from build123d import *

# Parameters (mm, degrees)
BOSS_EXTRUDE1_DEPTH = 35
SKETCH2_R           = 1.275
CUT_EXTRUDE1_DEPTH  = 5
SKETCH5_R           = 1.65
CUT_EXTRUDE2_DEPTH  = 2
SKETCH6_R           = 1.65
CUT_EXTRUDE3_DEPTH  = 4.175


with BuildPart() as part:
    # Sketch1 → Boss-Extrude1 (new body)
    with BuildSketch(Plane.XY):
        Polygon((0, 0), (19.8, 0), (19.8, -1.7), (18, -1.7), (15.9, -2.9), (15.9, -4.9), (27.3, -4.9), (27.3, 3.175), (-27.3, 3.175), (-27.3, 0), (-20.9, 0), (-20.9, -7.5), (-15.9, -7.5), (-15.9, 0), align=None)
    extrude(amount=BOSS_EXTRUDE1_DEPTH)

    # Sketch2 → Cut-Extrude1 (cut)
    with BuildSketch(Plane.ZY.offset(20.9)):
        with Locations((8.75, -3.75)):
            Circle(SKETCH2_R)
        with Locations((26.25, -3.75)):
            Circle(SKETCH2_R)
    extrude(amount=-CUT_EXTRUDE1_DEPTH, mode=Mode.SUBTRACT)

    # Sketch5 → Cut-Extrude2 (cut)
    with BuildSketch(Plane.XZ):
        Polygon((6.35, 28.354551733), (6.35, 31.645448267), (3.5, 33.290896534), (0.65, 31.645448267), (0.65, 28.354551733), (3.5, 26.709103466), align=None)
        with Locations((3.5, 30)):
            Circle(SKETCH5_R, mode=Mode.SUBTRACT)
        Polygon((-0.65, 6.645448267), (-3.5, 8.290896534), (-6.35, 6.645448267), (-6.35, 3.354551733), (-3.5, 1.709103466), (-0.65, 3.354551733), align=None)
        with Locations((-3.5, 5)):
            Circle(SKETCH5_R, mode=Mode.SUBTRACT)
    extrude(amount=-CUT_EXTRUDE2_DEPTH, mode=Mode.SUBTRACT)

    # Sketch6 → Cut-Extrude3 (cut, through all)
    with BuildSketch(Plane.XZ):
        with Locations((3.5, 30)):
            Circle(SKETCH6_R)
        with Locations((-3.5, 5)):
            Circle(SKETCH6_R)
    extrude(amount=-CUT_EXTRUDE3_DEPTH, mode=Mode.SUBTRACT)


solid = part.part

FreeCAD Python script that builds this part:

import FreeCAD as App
import Part
import Sketcher
Q = App.Units.Quantity


def add_polygon(sketch, points):
    """Adds a closed chain of lines whose ends are joined by coincident constraints."""
    first, n = sketch.GeometryCount, len(points)
    for a, b in zip(points, points[1:] + points[:1]):
        sketch.addGeometry(Part.LineSegment(App.Vector(*a, 0), App.Vector(*b, 0)), False)
    for i in range(n):
        sketch.addConstraint(Sketcher.Constraint("Coincident", first + i, 2, first + (i + 1) % n, 1))

doc = App.newDocument("Part")
params = doc.addObject("Spreadsheet::Sheet", "Params")
for row, (alias, value) in enumerate([
    ("sketch1_width", "5 mm"),
    ("sketch1_height", "2 mm"),
    ("sketch1_width2", "1.8 mm"),
    ("sketch1_width3", "11.4 mm"),
    ("sketch1_width4", "54.6 mm"),
    ("pad1_length", "35 mm"),
    ("sketch2_diameter", "2.55 mm"),
    ("pocket1_length", "5 mm"),
    ("sketch3_diameter", "3.3 mm"),
    ("pocket2_length", "2 mm"),
    ("sketch4_diameter", "3.3 mm"),
], start=1):
    params.set(f"A{row}", alias)
    params.set(f"B{row}", "=" + value)
    params.setAlias(f"B{row}", alias)

body = doc.addObject("PartDesign::Body", "Body")

# Sketch on XY plane
sketch1 = body.newObject("Sketcher::SketchObject", "Sketch")
sketch1.AttachmentSupport = (doc.getObject("XY_Plane"), [""])
sketch1.MapMode = "FlatFace"
add_polygon(sketch1, [(19.8, 0), (19.8, -1.7), (18, -1.7), (15.9, -2.9), (15.9, -4.9), (27.3, -4.9), (27.3, 3.175), (-27.3, 3.175), (-27.3, 0), (-20.9, 0), (-20.9, -7.5), (-15.9, -7.5), (-15.9, 0)])  # lines 0-12
sketch1.addConstraint([
    Sketcher.Constraint("Vertical", 0),
    Sketcher.Constraint("Horizontal", 1),
    Sketcher.Constraint("Vertical", 3),
    Sketcher.Constraint("Horizontal", 4),
    Sketcher.Constraint("Vertical", 5),
    Sketcher.Constraint("Horizontal", 6),
    Sketcher.Constraint("Vertical", 7),
    Sketcher.Constraint("Horizontal", 8),
    Sketcher.Constraint("Vertical", 9),
    Sketcher.Constraint("Horizontal", 10),
    Sketcher.Constraint("Vertical", 11),
    Sketcher.Constraint("Horizontal", 12),
    Sketcher.Constraint("PointOnObject", 7, 2, -1),
    Sketcher.Constraint("PointOnObject", 11, 2, -1),
    Sketcher.Constraint("DistanceX", 10, 1, 10, 2, 5.0),
    Sketcher.Constraint("DistanceY", 3, 2, 3, 1, 2.0),
    Sketcher.Constraint("DistanceX", 1, 2, 1, 1, 1.8),
    Sketcher.Constraint("DistanceX", 4, 1, 4, 2, 11.4),
    Sketcher.Constraint("DistanceX", 6, 2, 6, 1, 54.6),
    Sketcher.Constraint("DistanceX", 8, 1, 8, 2, 6.4),
    Sketcher.Constraint("DistanceX", 12, 1, 12, 2, 35.7),
    Sketcher.Constraint("DistanceY", 0, 2, 0, 1, 1.7),
    Sketcher.Constraint("DistanceY", 9, 2, 9, 1, 7.5),
    Sketcher.Constraint("DistanceX", -1, 1, 1, 2, 18.0),
    Sketcher.Constraint("DistanceY", 2, 2, -1, 1, 2.9),
    Sketcher.Constraint("DistanceY", 5, 1, 5, 2, 8.075),
])
sketch1.setExpression("Constraints[27]", "Params.sketch1_width")
sketch1.setExpression("Constraints[28]", "Params.sketch1_height")
sketch1.setExpression("Constraints[29]", "Params.sketch1_width2")
sketch1.setExpression("Constraints[30]", "Params.sketch1_width3")
sketch1.setExpression("Constraints[31]", "Params.sketch1_width4")
pad1 = body.newObject("PartDesign::Pad", "Pad")
pad1.Profile = sketch1
pad1.setExpression("Length", "Params.pad1_length")

# Sketch on YZ plane
sketch2 = body.newObject("Sketcher::SketchObject", "Sketch001")
sketch2.AttachmentSupport = (doc.getObject("YZ_Plane"), [""])
sketch2.MapMode = "FlatFace"
sketch2.AttachmentOffset = App.Placement(App.Vector(0, 0, -20.9), App.Rotation())
sketch2.addGeometry([
    Part.Circle(App.Vector(-3.75, 8.75, 0), App.Vector(0, 0, 1), 1.275),
    Part.Circle(App.Vector(-3.75, 26.25, 0), App.Vector(0, 0, 1), 1.275),
], False)
sketch2.addConstraint([
    Sketcher.Constraint("Equal", 0, 1),
    Sketcher.Constraint("Vertical", 0, 3, 1, 3),
    Sketcher.Constraint("Diameter", 0, 2.55),
    Sketcher.Constraint("DistanceY", 0, 3, 1, 3, 17.5),
    Sketcher.Constraint("DistanceX", 0, 3, -1, 1, 3.75),
    Sketcher.Constraint("DistanceY", -1, 1, 0, 3, 8.75),
])
sketch2.setExpression("Constraints[2]", "Params.sketch2_diameter")
pocket1 = body.newObject("PartDesign::Pocket", "Pocket")
pocket1.Profile = sketch2
pocket1.setExpression("Length", "Params.pocket1_length")
pocket1.Reversed = True

# Sketch on XZ plane
sketch3 = body.newObject("Sketcher::SketchObject", "Sketch002")
sketch3.AttachmentSupport = (doc.getObject("XZ_Plane"), [""])
sketch3.MapMode = "FlatFace"
add_polygon(sketch3, [(6.35, 28.354552), (6.35, 31.645448), (3.5, 33.290897), (0.65, 31.645448), (0.65, 28.354552), (3.5, 26.709103)])  # lines 0-5
sketch3.addGeometry(Part.Circle(App.Vector(3.5, 30, 0), App.Vector(0, 0, 1), 1.65), False)  # 6
add_polygon(sketch3, [(-0.65, 6.645448), (-3.5, 8.290897), (-6.35, 6.645448), (-6.35, 3.354552), (-3.5, 1.709103), (-0.65, 3.354552)])  # lines 7-12
sketch3.addGeometry(Part.Circle(App.Vector(-3.5, 5, 0), App.Vector(0, 0, 1), 1.65), False)  # 13
sketch3.addConstraint([
    Sketcher.Constraint("Vertical", 0),
    Sketcher.Constraint("Vertical", 3),
    Sketcher.Constraint("Vertical", 9),
    Sketcher.Constraint("Vertical", 12),
    Sketcher.Constraint("Equal", 6, 13),
    Sketcher.Constraint("Parallel", 1, 4),
    Sketcher.Constraint("Parallel", 2, 5),
    Sketcher.Constraint("Parallel", 4, 7),
    Sketcher.Constraint("Parallel", 5, 8),
    Sketcher.Constraint("Parallel", 7, 10),
    Sketcher.Constraint("Parallel", 8, 11),
    Sketcher.Constraint("Horizontal", 0, 2, 2, 2),
    Sketcher.Constraint("Horizontal", 3, 2, 5, 2),
    Sketcher.Constraint("Horizontal", 9, 2, 11, 2),
    Sketcher.Constraint("Horizontal", 8, 2, 12, 2),
    Sketcher.Constraint("Vertical", 6, 3, 1, 2),
    Sketcher.Constraint("Vertical", 1, 2, 4, 2),
    Sketcher.Constraint("Vertical", 13, 3, 7, 2),
    Sketcher.Constraint("Equal", 3, 9),
    Sketcher.Constraint("Equal", 5, 7),
    Sketcher.Constraint("Diameter", 6, 3.3),
    Sketcher.Constraint("Angle", 1, Q("150 deg")),
    Sketcher.Constraint("DistanceY", -1, 1, 6, 3, 30.0),
    Sketcher.Constraint("DistanceY", -1, 1, 13, 3, 5.0),
    Sketcher.Constraint("DistanceX", 13, 3, 6, 3, 7.0),
    Sketcher.Constraint("DistanceY", 9, 2, 3, 2, 25.0),
    Sketcher.Constraint("DistanceX", -1, 1, 6, 3, 3.5),
    Sketcher.Constraint("DistanceX", 2, 2, 0, 2, 5.7),
    Sketcher.Constraint("DistanceY", 0, 1, 0, 2, 3.290897),
    Sketcher.Constraint("DistanceY", -1, 1, 0, 2, 31.645448),
])
sketch3.setExpression("Constraints[32]", "Params.sketch3_diameter")
pocket2 = body.newObject("PartDesign::Pocket", "Pocket001")
pocket2.Profile = sketch3
pocket2.setExpression("Length", "Params.pocket2_length")

# Sketch on XZ plane
sketch4 = body.newObject("Sketcher::SketchObject", "Sketch003")
sketch4.AttachmentSupport = (doc.getObject("XZ_Plane"), [""])
sketch4.MapMode = "FlatFace"
sketch4.addGeometry([
    Part.Circle(App.Vector(3.5, 30, 0), App.Vector(0, 0, 1), 1.65),
    Part.Circle(App.Vector(-3.5, 5, 0), App.Vector(0, 0, 1), 1.65),
], False)
sketch4.addConstraint([
    Sketcher.Constraint("Equal", 0, 1),
    Sketcher.Constraint("Diameter", 0, 3.3),
    Sketcher.Constraint("DistanceY", -1, 1, 0, 3, 30.0),
    Sketcher.Constraint("DistanceY", -1, 1, 1, 3, 5.0),
    Sketcher.Constraint("DistanceX", 1, 3, 0, 3, 7.0),
    Sketcher.Constraint("DistanceX", -1, 1, 0, 3, 3.5),
])
sketch4.setExpression("Constraints[1]", "Params.sketch4_diameter")
pocket3 = body.newObject("PartDesign::Pocket", "Pocket002")
pocket3.Profile = sketch4
pocket3.Type = "ThroughAll"

doc.recompute()
